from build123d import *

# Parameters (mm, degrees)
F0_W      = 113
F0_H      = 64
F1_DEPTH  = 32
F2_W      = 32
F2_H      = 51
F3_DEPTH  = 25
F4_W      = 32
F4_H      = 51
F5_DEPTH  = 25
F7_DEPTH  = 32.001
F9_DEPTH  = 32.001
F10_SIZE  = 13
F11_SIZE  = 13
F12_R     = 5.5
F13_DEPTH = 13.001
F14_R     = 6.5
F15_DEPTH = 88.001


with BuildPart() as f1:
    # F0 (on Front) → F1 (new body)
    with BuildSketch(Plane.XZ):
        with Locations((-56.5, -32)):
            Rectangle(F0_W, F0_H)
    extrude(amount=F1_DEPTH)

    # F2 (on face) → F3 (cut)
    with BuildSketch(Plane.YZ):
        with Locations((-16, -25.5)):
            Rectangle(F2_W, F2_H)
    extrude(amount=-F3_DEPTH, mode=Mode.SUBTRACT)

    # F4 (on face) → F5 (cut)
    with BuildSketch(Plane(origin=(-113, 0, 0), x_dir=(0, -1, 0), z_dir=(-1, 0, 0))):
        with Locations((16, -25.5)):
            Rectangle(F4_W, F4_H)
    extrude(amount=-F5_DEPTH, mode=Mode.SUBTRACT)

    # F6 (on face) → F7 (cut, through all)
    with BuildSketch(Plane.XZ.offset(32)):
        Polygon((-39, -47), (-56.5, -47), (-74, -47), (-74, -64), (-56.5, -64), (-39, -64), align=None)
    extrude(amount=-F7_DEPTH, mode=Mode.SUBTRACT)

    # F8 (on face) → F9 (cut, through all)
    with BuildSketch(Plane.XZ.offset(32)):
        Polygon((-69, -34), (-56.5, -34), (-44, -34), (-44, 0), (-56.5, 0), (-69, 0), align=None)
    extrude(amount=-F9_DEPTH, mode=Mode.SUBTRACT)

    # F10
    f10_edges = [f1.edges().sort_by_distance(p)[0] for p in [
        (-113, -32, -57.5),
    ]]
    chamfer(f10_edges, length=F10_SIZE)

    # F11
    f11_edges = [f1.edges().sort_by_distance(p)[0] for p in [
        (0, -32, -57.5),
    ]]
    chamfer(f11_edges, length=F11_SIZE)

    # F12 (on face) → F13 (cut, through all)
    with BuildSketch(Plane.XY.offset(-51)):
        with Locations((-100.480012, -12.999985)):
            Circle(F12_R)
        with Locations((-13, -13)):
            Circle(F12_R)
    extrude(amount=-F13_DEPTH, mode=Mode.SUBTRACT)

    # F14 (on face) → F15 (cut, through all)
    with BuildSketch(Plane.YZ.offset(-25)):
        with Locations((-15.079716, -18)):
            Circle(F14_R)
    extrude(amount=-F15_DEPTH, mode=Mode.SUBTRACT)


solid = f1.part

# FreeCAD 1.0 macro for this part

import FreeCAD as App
import Part
import Sketcher


def edges_at(feature, points):
    """Names of the edges that pass closest to the given points."""
    edges = feature.Shape.Edges
    near = lambda p: min(range(len(edges)), key=lambda i: edges[i].distToShape(Part.Vertex(*p))[0])
    return sorted({f"Edge{near(p) + 1}" for p in points})


def add_polygon(sketch, points):
    """Adds a closed chain of lines whose ends are joined by coincident constraints."""
    first, n = sketch.GeometryCount, len(points)
    for a, b in zip(points, points[1:] + points[:1]):
        sketch.addGeometry(Part.LineSegment(App.Vector(*a, 0), App.Vector(*b, 0)), False)
    for i in range(n):
        sketch.addConstraint(Sketcher.Constraint("Coincident", first + i, 2, first + (i + 1) % n, 1))

doc = App.newDocument("Part")
body = doc.addObject("PartDesign::Body", "Body")

sketch1 = body.newObject("Sketcher::SketchObject", "Sketch")
sketch1.AttachmentSupport = (doc.getObject("XZ_Plane"), [""])
sketch1.MapMode = "FlatFace"
add_polygon(sketch1, [(-113, 0), (-113, -64), (0, -64), (0, 0)])
sketch1.addConstraint(Sketcher.Constraint("Vertical", 0))
sketch1.addConstraint(Sketcher.Constraint("Horizontal", 1))
sketch1.addConstraint(Sketcher.Constraint("Vertical", 2))
sketch1.addConstraint(Sketcher.Constraint("Horizontal", 3))
sketch1.addConstraint(Sketcher.Constraint("Coincident", 2, 2, -1, 1))
sketch1.addConstraint(Sketcher.Constraint("DistanceX", 1, 1, 1, 2, 113.0))
sketch1.addConstraint(Sketcher.Constraint("DistanceY", 0, 2, 0, 1, 64.0))
pad1 = body.newObject("PartDesign::Pad", "Pad")
pad1.Profile = sketch1
pad1.Length = 32

sketch2 = body.newObject("Sketcher::SketchObject", "Sketch001")
sketch2.AttachmentSupport = (doc.getObject("YZ_Plane"), [""])
sketch2.MapMode = "FlatFace"
add_polygon(sketch2, [(-32, 0), (-32, -51), (0, -51), (0, 0)])
sketch2.addConstraint(Sketcher.Constraint("Vertical", 0))
sketch2.addConstraint(Sketcher.Constraint("Horizontal", 1))
sketch2.addConstraint(Sketcher.Constraint("Vertical", 2))
sketch2.addConstraint(Sketcher.Constraint("Horizontal", 3))
sketch2.addConstraint(Sketcher.Constraint("Coincident", 2, 2, -1, 1))
sketch2.addConstraint(Sketcher.Constraint("DistanceX", 1, 1, 1, 2, 32.0))
sketch2.addConstraint(Sketcher.Constraint("DistanceY", 0, 2, 0, 1, 51.0))
pocket1 = body.newObject("PartDesign::Pocket", "Pocket")
pocket1.Profile = sketch2
pocket1.Length = 25

sketch3 = body.newObject("Sketcher::SketchObject", "Sketch002")
sketch3.AttachmentSupport = (doc.getObject("YZ_Plane"), [""])
sketch3.MapMode = "FlatFace"
sketch3.AttachmentOffset = App.Placement(App.Vector(0, 0, -113), App.Rotation())
add_polygon(sketch3, [(0, 0), (0, -51), (-32, -51), (-32, 0)])
sketch3.addConstraint(Sketcher.Constraint("Vertical", 0))
sketch3.addConstraint(Sketcher.Constraint("Horizontal", 1))
sketch3.addConstraint(Sketcher.Constraint("Vertical", 2))
sketch3.addConstraint(Sketcher.Constraint("Horizontal", 3))
sketch3.addConstraint(Sketcher.Constraint("Coincident", 3, 2, -1, 1))
sketch3.addConstraint(Sketcher.Constraint("DistanceX", 1, 2, 1, 1, 32.0))
sketch3.addConstraint(Sketcher.Constraint("DistanceY", 0, 2, 0, 1, 51.0))
pocket2 = body.newObject("PartDesign::Pocket", "Pocket001")
pocket2.Profile = sketch3
pocket2.Length = 25
pocket2.Reversed = True

sketch4 = body.newObject("Sketcher::SketchObject", "Sketch003")
sketch4.AttachmentSupport = (doc.getObject("XZ_Plane"), [""])
sketch4.MapMode = "FlatFace"
sketch4.AttachmentOffset = App.Placement(App.Vector(0, 0, 32), App.Rotation())
add_polygon(sketch4, [(-39, -47), (-74, -47), (-74, -64), (-39, -64)])
sketch4.addConstraint(Sketcher.Constraint("Horizontal", 0))
sketch4.addConstraint(Sketcher.Constraint("Vertical", 1))
sketch4.addConstraint(Sketcher.Constraint("Horizontal", 2))
sketch4.addConstraint(Sketcher.Constraint("Vertical", 3))
sketch4.addConstraint(Sketcher.Constraint("DistanceX", 0, 2, 0, 1, 35.0))
sketch4.addConstraint(Sketcher.Constraint("DistanceY", 1, 2, 1, 1, 17.0))
sketch4.addConstraint(Sketcher.Constraint("DistanceX", 0, 2, -1, 1, 74.0))
sketch4.addConstraint(Sketcher.Constraint("DistanceY", 0, 2, -1, 1, 47.0))
pocket3 = body.newObject("PartDesign::Pocket", "Pocket002")
pocket3.Profile = sketch4
pocket3.Type = "ThroughAll"

sketch5 = body.newObject("Sketcher::SketchObject", "Sketch004")
sketch5.AttachmentSupport = (doc.getObject("XZ_Plane"), [""])
sketch5.MapMode = "FlatFace"
sketch5.AttachmentOffset = App.Placement(App.Vector(0, 0, 32), App.Rotation())
add_polygon(sketch5, [(-69, -34), (-44, -34), (-44, 0), (-69, 0)])
sketch5.addConstraint(Sketcher.Constraint("Horizontal", 0))
sketch5.addConstraint(Sketcher.Constraint("Vertical", 1))
sketch5.addConstraint(Sketcher.Constraint("Horizontal", 2))
sketch5.addConstraint(Sketcher.Constraint("Vertical", 3))
sketch5.addConstraint(Sketcher.Constraint("PointOnObject", 1, 2, -1))
sketch5.addConstraint(Sketcher.Constraint("DistanceX", 0, 1, 0, 2, 25.0))
sketch5.addConstraint(Sketcher.Constraint("DistanceY", 1, 1, 1, 2, 34.0))
sketch5.addConstraint(Sketcher.Constraint("DistanceX", 0, 2, -1, 1, 44.0))
pocket4 = body.newObject("PartDesign::Pocket", "Pocket003")
pocket4.Profile = sketch5
pocket4.Type = "ThroughAll"
doc.recompute()

chamfer = body.newObject("PartDesign::Chamfer", "Chamfer")
chamfer.Base = (pocket4, edges_at(pocket4, [(-113, -32, -57.5)]))
chamfer.Size = 13
doc.recompute()

chamfer2 = body.newObject("PartDesign::Chamfer", "Chamfer001")
chamfer2.Base = (chamfer, edges_at(chamfer, [(0, -32, -57.5)]))
chamfer2.Size = 13

sketch6 = body.newObject("Sketcher::SketchObject", "Sketch005")
sketch6.AttachmentSupport = (doc.getObject("XY_Plane"), [""])
sketch6.MapMode = "FlatFace"
sketch6.AttachmentOffset = App.Placement(App.Vector(0, 0, -51), App.Rotation())
sketch6.addGeometry(Part.Circle(App.Vector(-100, -13, 0), App.Vector(0, 0, 1), 6), False)
sketch6.addGeometry(Part.Circle(App.Vector(-13, -13, 0), App.Vector(0, 0, 1), 6), False)
sketch6.addConstraint(Sketcher.Constraint("Equal", 0, 1))
sketch6.addConstraint(Sketcher.Constraint("Diameter", 0, 11.0))
sketch6.addConstraint(Sketcher.Constraint("DistanceX", 1, 3, -1, 1, 13.0))
sketch6.addConstraint(Sketcher.Constraint("DistanceY", 1, 3, -1, 1, 13.0))
sketch6.addConstraint(Sketcher.Constraint("DistanceX", 0, 3, -1, 1, 100.480012))
sketch6.addConstraint(Sketcher.Constraint("DistanceY", 0, 3, -1, 1, 12.999985))
pocket5 = body.newObject("PartDesign::Pocket", "Pocket004")
pocket5.Profile = sketch6
pocket5.Type = "ThroughAll"

sketch7 = body.newObject("Sketcher::SketchObject", "Sketch006")
sketch7.AttachmentSupport = (doc.getObject("YZ_Plane"), [""])
sketch7.MapMode = "FlatFace"
sketch7.AttachmentOffset = App.Placement(App.Vector(0, 0, -25), App.Rotation())
sketch7.addGeometry(Part.Circle(App.Vector(-15, -18, 0), App.Vector(0, 0, 1), 6), False)
sketch7.addConstraint(Sketcher.Constraint("Diameter", 0, 13.0))
sketch7.addConstraint(Sketcher.Constraint("DistanceY", 0, 3, -1, 1, 18.0))
sketch7.addConstraint(Sketcher.Constraint("DistanceX", 0, 3, -1, 1, 15.079716))
pocket6 = body.newObject("PartDesign::Pocket", "Pocket005")
pocket6.Profile = sketch7
pocket6.Type = "ThroughAll"

doc.recompute()
